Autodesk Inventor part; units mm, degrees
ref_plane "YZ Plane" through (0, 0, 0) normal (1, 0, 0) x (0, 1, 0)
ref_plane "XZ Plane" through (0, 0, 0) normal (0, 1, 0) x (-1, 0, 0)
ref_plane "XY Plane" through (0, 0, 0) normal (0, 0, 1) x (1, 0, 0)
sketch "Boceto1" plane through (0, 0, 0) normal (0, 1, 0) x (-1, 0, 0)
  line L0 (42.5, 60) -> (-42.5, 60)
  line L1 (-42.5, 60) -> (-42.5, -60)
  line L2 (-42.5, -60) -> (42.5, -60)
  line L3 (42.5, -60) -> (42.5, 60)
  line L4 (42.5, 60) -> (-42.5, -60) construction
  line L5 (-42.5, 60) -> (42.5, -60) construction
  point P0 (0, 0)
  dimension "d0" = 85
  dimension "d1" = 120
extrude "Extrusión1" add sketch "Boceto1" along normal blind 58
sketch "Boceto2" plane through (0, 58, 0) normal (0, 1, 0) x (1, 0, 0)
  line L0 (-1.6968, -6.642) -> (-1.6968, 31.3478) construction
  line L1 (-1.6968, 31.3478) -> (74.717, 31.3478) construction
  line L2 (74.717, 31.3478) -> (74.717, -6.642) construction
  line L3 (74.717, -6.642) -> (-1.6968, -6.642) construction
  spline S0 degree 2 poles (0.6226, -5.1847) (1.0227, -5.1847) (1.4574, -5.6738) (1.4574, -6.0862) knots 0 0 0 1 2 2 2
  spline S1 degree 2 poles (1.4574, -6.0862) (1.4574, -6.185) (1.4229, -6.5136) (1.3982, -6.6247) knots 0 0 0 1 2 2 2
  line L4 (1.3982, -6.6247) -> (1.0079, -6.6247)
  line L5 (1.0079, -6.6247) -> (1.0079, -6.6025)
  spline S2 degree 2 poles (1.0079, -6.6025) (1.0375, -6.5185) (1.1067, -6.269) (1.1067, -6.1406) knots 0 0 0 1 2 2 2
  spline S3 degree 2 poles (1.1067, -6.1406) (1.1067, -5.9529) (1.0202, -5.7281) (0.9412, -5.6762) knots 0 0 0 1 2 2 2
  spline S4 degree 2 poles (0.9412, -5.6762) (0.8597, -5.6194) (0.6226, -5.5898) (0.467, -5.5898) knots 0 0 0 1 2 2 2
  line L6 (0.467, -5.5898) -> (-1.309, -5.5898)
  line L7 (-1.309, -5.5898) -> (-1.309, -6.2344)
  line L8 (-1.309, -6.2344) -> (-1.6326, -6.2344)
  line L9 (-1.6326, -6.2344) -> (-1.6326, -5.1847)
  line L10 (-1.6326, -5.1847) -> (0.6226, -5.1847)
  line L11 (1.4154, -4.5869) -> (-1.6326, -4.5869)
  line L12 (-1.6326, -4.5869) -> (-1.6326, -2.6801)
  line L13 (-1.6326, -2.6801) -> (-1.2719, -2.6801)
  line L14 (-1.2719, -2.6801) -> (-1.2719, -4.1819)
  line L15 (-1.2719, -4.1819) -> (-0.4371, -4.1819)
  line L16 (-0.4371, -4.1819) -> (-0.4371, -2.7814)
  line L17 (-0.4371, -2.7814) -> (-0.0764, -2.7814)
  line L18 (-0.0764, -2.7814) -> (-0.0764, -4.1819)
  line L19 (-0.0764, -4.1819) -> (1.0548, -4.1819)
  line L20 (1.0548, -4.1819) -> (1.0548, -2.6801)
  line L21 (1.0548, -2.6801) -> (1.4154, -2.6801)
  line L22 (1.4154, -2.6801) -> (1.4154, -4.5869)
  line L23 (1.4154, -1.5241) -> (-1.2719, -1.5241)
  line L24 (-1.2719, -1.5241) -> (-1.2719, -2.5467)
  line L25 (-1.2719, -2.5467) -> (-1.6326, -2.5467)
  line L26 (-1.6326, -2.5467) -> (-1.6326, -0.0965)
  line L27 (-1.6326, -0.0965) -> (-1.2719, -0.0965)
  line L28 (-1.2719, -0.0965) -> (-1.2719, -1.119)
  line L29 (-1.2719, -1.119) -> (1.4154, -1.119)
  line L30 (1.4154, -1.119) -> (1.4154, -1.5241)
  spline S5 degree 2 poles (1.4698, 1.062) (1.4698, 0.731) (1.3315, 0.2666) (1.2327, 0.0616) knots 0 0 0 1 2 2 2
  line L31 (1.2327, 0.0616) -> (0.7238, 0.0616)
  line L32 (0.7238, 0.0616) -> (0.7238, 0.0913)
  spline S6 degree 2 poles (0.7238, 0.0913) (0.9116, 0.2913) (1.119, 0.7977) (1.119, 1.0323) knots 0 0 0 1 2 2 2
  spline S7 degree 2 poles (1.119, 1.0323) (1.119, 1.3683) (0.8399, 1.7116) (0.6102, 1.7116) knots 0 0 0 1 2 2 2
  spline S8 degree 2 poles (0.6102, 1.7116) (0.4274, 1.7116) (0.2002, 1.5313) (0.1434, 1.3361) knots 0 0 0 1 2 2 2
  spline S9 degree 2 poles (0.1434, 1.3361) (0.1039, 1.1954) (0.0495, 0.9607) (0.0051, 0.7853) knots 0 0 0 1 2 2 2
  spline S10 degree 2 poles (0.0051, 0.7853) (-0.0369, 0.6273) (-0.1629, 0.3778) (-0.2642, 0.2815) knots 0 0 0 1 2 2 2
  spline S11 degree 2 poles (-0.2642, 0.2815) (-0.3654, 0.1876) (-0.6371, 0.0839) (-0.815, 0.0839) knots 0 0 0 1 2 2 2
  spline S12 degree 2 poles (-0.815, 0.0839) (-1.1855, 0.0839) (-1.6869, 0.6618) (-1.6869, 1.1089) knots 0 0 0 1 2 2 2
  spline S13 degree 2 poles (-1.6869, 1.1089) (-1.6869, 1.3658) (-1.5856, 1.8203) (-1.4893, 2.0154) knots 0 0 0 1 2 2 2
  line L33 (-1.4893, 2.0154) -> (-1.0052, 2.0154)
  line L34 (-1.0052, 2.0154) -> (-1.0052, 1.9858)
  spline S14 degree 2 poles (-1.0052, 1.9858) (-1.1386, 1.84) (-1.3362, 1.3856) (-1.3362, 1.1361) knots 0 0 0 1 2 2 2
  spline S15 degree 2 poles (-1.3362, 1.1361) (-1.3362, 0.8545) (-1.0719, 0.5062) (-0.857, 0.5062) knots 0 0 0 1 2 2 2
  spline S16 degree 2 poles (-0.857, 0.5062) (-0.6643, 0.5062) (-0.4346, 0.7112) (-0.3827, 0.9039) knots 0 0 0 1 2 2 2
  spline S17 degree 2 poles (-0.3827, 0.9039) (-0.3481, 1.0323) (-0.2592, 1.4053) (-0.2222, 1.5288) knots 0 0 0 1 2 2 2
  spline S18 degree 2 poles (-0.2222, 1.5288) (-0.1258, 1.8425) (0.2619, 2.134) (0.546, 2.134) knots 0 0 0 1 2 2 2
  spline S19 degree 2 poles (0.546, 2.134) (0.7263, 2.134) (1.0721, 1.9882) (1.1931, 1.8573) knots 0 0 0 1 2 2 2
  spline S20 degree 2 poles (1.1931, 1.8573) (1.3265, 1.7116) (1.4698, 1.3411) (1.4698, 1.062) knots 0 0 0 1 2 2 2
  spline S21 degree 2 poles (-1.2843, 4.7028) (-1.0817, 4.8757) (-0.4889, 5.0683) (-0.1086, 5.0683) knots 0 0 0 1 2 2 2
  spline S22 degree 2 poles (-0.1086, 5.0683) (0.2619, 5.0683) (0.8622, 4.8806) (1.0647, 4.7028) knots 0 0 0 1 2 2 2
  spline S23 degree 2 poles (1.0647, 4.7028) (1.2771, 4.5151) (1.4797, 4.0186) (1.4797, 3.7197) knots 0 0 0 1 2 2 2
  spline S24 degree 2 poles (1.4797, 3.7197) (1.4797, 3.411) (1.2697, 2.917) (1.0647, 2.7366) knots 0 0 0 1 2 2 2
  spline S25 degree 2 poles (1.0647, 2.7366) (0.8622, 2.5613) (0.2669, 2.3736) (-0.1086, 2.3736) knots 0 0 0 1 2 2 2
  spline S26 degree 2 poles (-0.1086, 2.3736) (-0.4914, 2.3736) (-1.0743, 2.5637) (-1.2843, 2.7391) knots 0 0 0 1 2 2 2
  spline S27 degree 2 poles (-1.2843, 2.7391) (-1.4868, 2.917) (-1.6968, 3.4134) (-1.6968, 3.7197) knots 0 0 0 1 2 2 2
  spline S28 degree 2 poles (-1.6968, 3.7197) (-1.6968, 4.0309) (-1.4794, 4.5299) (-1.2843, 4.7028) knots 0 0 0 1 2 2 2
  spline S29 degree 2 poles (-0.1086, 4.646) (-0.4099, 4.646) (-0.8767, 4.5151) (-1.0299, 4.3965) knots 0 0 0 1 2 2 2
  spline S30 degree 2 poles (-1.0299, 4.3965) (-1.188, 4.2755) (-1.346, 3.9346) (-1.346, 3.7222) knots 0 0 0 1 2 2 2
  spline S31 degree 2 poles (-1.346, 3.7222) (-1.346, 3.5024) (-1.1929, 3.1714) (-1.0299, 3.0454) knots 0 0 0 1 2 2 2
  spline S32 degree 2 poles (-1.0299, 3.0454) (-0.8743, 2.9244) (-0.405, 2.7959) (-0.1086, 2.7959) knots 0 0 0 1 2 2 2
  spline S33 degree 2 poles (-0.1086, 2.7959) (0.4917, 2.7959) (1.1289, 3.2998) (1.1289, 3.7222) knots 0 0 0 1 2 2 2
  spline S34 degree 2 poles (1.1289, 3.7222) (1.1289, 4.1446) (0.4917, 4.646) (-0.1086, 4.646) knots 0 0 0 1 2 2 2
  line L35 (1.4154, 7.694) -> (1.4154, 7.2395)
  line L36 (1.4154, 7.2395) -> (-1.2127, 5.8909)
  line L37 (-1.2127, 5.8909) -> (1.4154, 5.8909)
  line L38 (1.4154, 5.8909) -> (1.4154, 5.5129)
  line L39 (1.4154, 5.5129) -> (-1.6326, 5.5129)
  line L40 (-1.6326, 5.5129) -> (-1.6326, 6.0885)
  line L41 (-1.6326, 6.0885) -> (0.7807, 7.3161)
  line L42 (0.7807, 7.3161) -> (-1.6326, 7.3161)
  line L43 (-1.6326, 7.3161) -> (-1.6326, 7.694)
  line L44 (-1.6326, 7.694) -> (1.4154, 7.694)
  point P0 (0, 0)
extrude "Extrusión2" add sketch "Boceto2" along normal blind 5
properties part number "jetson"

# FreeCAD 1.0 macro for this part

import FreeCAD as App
import Part
import Sketcher

V = App.Vector

doc = App.newDocument("Part")
body = doc.addObject("PartDesign::Body", "Body")

# Sketch on XZ plane
sketch1 = body.newObject("Sketcher::SketchObject", "Sketch")
sketch1.AttachmentSupport = (doc.getObject("XZ_Plane"), [""])
sketch1.MapMode = "FlatFace"
sketch1.addGeometry([
    Part.LineSegment(V(-42, -60, 0), V(-42, 60, 0)),
    Part.LineSegment(V(-42, 60, 0), V(42, 60, 0)),
    Part.LineSegment(V(42, 60, 0), V(42, -60, 0)),
    Part.LineSegment(V(42, -60, 0), V(-42, -60, 0)),
], False)
sketch1.addConstraint([
    Sketcher.Constraint("Coincident", 0, 2, 1, 1),
    Sketcher.Constraint("Coincident", 1, 2, 2, 1),
    Sketcher.Constraint("Coincident", 2, 2, 3, 1),
    Sketcher.Constraint("Coincident", 3, 2, 0, 1),
    Sketcher.Constraint("Vertical", 0),
    Sketcher.Constraint("Horizontal", 1),
    Sketcher.Constraint("Vertical", 2),
    Sketcher.Constraint("Horizontal", 3),
    Sketcher.Constraint("Symmetric", 0, 2, 2, 2, -1, 1),
    Sketcher.Constraint("DistanceX", 1, 1, 1, 2, 85.0),
    Sketcher.Constraint("DistanceY", 0, 1, 0, 2, 120.0),
])
pad1 = body.newObject("PartDesign::Pad", "Pad")
pad1.Profile = sketch1
pad1.Length = 58
pad1.Reversed = True

# Sketch on XZ plane
sketch2 = body.newObject("Sketcher::SketchObject", "Sketch001")
sketch2.AttachmentSupport = (doc.getObject("XZ_Plane"), [""])
sketch2.MapMode = "FlatFace"
sketch2.AttachmentOffset = App.Placement(V(0, 0, -58), App.Rotation())
sketch2.addGeometry([
    Part.BSplineCurve([V(0.6226, 5.1847, 0), V(1.0227, 5.1847, 0), V(1.4574, 5.6738, 0), V(1.4574, 6.0862, 0)], [3, 1, 3], [0, 1, 2], False, 2, [1, 1, 1, 1], False),  # 0
    Part.LineSegment(V(0.6226, 5.1847, 0), V(-1.6326, 5.1847, 0)),  # 1
    Part.LineSegment(V(-1.6326, 5.1847, 0), V(-1.6326, 6.2344, 0)),  # 2
    Part.LineSegment(V(-1.6326, 6.2344, 0), V(-1.309, 6.2344, 0)),  # 3
    Part.LineSegment(V(-1.309, 6.2344, 0), V(-1.309, 5.5898, 0)),  # 4
    Part.LineSegment(V(-1.309, 5.5898, 0), V(0.467, 5.5898, 0)),  # 5
    Part.BSplineCurve([V(0.9412, 5.6762, 0), V(0.8597, 5.6194, 0), V(0.6226, 5.5898, 0), V(0.467, 5.5898, 0)], [3, 1, 3], [0, 1, 2], False, 2, [1, 1, 1, 1], False),  # 6
    Part.BSplineCurve([V(1.1067, 6.1406, 0), V(1.1067, 5.9529, 0), V(1.0202, 5.7281, 0), V(0.9412, 5.6762, 0)], [3, 1, 3], [0, 1, 2], False, 2, [1, 1, 1, 1], False),  # 7
    Part.BSplineCurve([V(1.0079, 6.6025, 0), V(1.0375, 6.5185, 0), V(1.1067, 6.269, 0), V(1.1067, 6.1406, 0)], [3, 1, 3], [0, 1, 2], False, 2, [1, 1, 1, 1], False),  # 8
    Part.LineSegment(V(1.0079, 6.6025, 0), V(1.0079, 6.6247, 0)),  # 9
    Part.LineSegment(V(1.0079, 6.6247, 0), V(1.3982, 6.6247, 0)),  # 10
    Part.BSplineCurve([V(1.4574, 6.0862, 0), V(1.4574, 6.185, 0), V(1.4229, 6.5136, 0), V(1.3982, 6.6247, 0)], [3, 1, 3], [0, 1, 2], False, 2, [1, 1, 1, 1], False),  # 11
    Part.LineSegment(V(-1.6326, 4.5869, 0), V(1.4154, 4.5869, 0)),  # 12
    Part.LineSegment(V(1.4154, 4.5869, 0), V(1.4154, 2.6801, 0)),  # 13
    Part.LineSegment(V(1.4154, 2.6801, 0), V(1.0548, 2.6801, 0)),  # 14
    Part.LineSegment(V(1.0548, 2.6801, 0), V(1.0548, 4.1819, 0)),  # 15
    Part.LineSegment(V(1.0548, 4.1819, 0), V(-0.0764, 4.1819, 0)),  # 16
    Part.LineSegment(V(-0.0764, 4.1819, 0), V(-0.0764, 2.7814, 0)),  # 17
    Part.LineSegment(V(-0.0764, 2.7814, 0), V(-0.4371, 2.7814, 0)),  # 18
    Part.LineSegment(V(-0.4371, 2.7814, 0), V(-0.4371, 4.1819, 0)),  # 19
    Part.LineSegment(V(-0.4371, 4.1819, 0), V(-1.2719, 4.1819, 0)),  # 20
    Part.LineSegment(V(-1.2719, 4.1819, 0), V(-1.2719, 2.6801, 0)),  # 21
    Part.LineSegment(V(-1.2719, 2.6801, 0), V(-1.6326, 2.6801, 0)),  # 22
    Part.LineSegment(V(-1.6326, 2.6801, 0), V(-1.6326, 4.5869, 0)),  # 23
    Part.LineSegment(V(-1.2719, 1.5241, 0), V(1.4154, 1.5241, 0)),  # 24
    Part.LineSegment(V(1.4154, 1.5241, 0), V(1.4154, 1.119, 0)),  # 25
    Part.LineSegment(V(1.4154, 1.119, 0), V(-1.2719, 1.119, 0)),  # 26
    Part.LineSegment(V(-1.2719, 1.119, 0), V(-1.2719, 0.0965, 0)),  # 27
    Part.LineSegment(V(-1.2719, 0.0965, 0), V(-1.6326, 0.0965, 0)),  # 28
    Part.LineSegment(V(-1.6326, 0.0965, 0), V(-1.6326, 2.5467, 0)),  # 29
    Part.LineSegment(V(-1.6326, 2.5467, 0), V(-1.2719, 2.5467, 0)),  # 30
    Part.LineSegment(V(-1.2719, 2.5467, 0), V(-1.2719, 1.5241, 0)),  # 31
    Part.BSplineCurve([V(1.4698, -1.062, 0), V(1.4698, -0.731, 0), V(1.3315, -0.2666, 0), V(1.2327, -0.0616, 0)], [3, 1, 3], [0, 1, 2], False, 2, [1, 1, 1, 1], False),  # 32
    Part.BSplineCurve([V(1.1931, -1.8573, 0), V(1.3265, -1.7116, 0), V(1.4698, -1.3411, 0), V(1.4698, -1.062, 0)], [3, 1, 3], [0, 1, 2], False, 2, [1, 1, 1, 1], False),  # 33
    Part.BSplineCurve([V(0.546, -2.134, 0), V(0.7263, -2.134, 0), V(1.0721, -1.9882, 0), V(1.1931, -1.8573, 0)], [3, 1, 3], [0, 1, 2], False, 2, [1, 1, 1, 1], False),  # 34
    Part.BSplineCurve([V(-0.2222, -1.5288, 0), V(-0.1258, -1.8425, 0), V(0.2619, -2.134, 0), V(0.546, -2.134, 0)], [3, 1, 3], [0, 1, 2], False, 2, [1, 1, 1, 1], False),  # 35
    Part.BSplineCurve([V(-0.3827, -0.9039, 0), V(-0.3481, -1.0323, 0), V(-0.2592, -1.4053, 0), V(-0.2222, -1.5288, 0)], [3, 1, 3], [0, 1, 2], False, 2, [1, 1, 1, 1], False),  # 36
    Part.BSplineCurve([V(-0.857, -0.5062, 0), V(-0.6643, -0.5062, 0), V(-0.4346, -0.7112, 0), V(-0.3827, -0.9039, 0)], [3, 1, 3], [0, 1, 2], False, 2, [1, 1, 1, 1], False),  # 37
    Part.BSplineCurve([V(-1.3362, -1.1361, 0), V(-1.3362, -0.8545, 0), V(-1.0719, -0.5062, 0), V(-0.857, -0.5062, 0)], [3, 1, 3], [0, 1, 2], False, 2, [1, 1, 1, 1], False),  # 38
    Part.BSplineCurve([V(-1.0052, -1.9858, 0), V(-1.1386, -1.84, 0), V(-1.3362, -1.3856, 0), V(-1.3362, -1.1361, 0)], [3, 1, 3], [0, 1, 2], False, 2, [1, 1, 1, 1], False),  # 39
    Part.LineSegment(V(-1.0052, -1.9858, 0), V(-1.0052, -2.0154, 0)),  # 40
    Part.LineSegment(V(-1.0052, -2.0154, 0), V(-1.4893, -2.0154, 0)),  # 41
    Part.BSplineCurve([V(-1.6869, -1.1089, 0), V(-1.6869, -1.3658, 0), V(-1.5856, -1.8203, 0), V(-1.4893, -2.0154, 0)], [3, 1, 3], [0, 1, 2], False, 2, [1, 1, 1, 1], False),  # 42
    Part.BSplineCurve([V(-0.815, -0.0839, 0), V(-1.1855, -0.0839, 0), V(-1.6869, -0.6618, 0), V(-1.6869, -1.1089, 0)], [3, 1, 3], [0, 1, 2], False, 2, [1, 1, 1, 1], False),  # 43
    Part.BSplineCurve([V(-0.2642, -0.2815, 0), V(-0.3654, -0.1876, 0), V(-0.6371, -0.0839, 0), V(-0.815, -0.0839, 0)], [3, 1, 3], [0, 1, 2], False, 2, [1, 1, 1, 1], False),  # 44
    Part.BSplineCurve([V(0.0051, -0.7853, 0), V(-0.0369, -0.6273, 0), V(-0.1629, -0.3778, 0), V(-0.2642, -0.2815, 0)], [3, 1, 3], [0, 1, 2], False, 2, [1, 1, 1, 1], False),  # 45
    Part.BSplineCurve([V(0.1434, -1.3361, 0), V(0.1039, -1.1954, 0), V(0.0495, -0.9607, 0), V(0.0051, -0.7853, 0)], [3, 1, 3], [0, 1, 2], False, 2, [1, 1, 1, 1], False),  # 46
    Part.BSplineCurve([V(0.6102, -1.7116, 0), V(0.4274, -1.7116, 0), V(0.2002, -1.5313, 0), V(0.1434, -1.3361, 0)], [3, 1, 3], [0, 1, 2], False, 2, [1, 1, 1, 1], False),  # 47
    Part.BSplineCurve([V(1.119, -1.0323, 0), V(1.119, -1.3683, 0), V(0.8399, -1.7116, 0), V(0.6102, -1.7116, 0)], [3, 1, 3], [0, 1, 2], False, 2, [1, 1, 1, 1], False),  # 48
    Part.BSplineCurve([V(0.7238, -0.0913, 0), V(0.9116, -0.2913, 0), V(1.119, -0.7977, 0), V(1.119, -1.0323, 0)], [3, 1, 3], [0, 1, 2], False, 2, [1, 1, 1, 1], False),  # 49
    Part.LineSegment(V(0.7238, -0.0913, 0), V(0.7238, -0.0616, 0)),  # 50
    Part.LineSegment(V(0.7238, -0.0616, 0), V(1.2327, -0.0616, 0)),  # 51
    Part.BSplineCurve([V(-1.2843, -4.7028, 0), V(-1.0817, -4.8757, 0), V(-0.4889, -5.0683, 0), V(-0.1086, -5.0683, 0)], [3, 1, 3], [0, 1, 2], False, 2, [1, 1, 1, 1], False),  # 52
    Part.BSplineCurve([V(-1.6968, -3.7197, 0), V(-1.6968, -4.0309, 0), V(-1.4794, -4.5299, 0), V(-1.2843, -4.7028, 0)], [3, 1, 3], [0, 1, 2], False, 2, [1, 1, 1, 1], False),  # 53
    Part.BSplineCurve([V(-1.2843, -2.7391, 0), V(-1.4868, -2.917, 0), V(-1.6968, -3.4134, 0), V(-1.6968, -3.7197, 0)], [3, 1, 3], [0, 1, 2], False, 2, [1, 1, 1, 1], False),  # 54
    Part.BSplineCurve([V(-0.1086, -2.3736, 0), V(-0.4914, -2.3736, 0), V(-1.0743, -2.5637, 0), V(-1.2843, -2.7391, 0)], [3, 1, 3], [0, 1, 2], False, 2, [1, 1, 1, 1], False),  # 55
    Part.BSplineCurve([V(1.0647, -2.7366, 0), V(0.8622, -2.5613, 0), V(0.2669, -2.3736, 0), V(-0.1086, -2.3736, 0)], [3, 1, 3], [0, 1, 2], False, 2, [1, 1, 1, 1], False),  # 56
    Part.BSplineCurve([V(1.4797, -3.7197, 0), V(1.4797, -3.411, 0), V(1.2697, -2.917, 0), V(1.0647, -2.7366, 0)], [3, 1, 3], [0, 1, 2], False, 2, [1, 1, 1, 1], False),  # 57
    Part.BSplineCurve([V(1.0647, -4.7028, 0), V(1.2771, -4.5151, 0), V(1.4797, -4.0186, 0), V(1.4797, -3.7197, 0)], [3, 1, 3], [0, 1, 2], False, 2, [1, 1, 1, 1], False),  # 58
    Part.BSplineCurve([V(-0.1086, -5.0683, 0), V(0.2619, -5.0683, 0), V(0.8622, -4.8806, 0), V(1.0647, -4.7028, 0)], [3, 1, 3], [0, 1, 2], False, 2, [1, 1, 1, 1], False),  # 59
    Part.BSplineCurve([V(-0.1086, -4.646, 0), V(-0.4099, -4.646, 0), V(-0.8767, -4.5151, 0), V(-1.0299, -4.3965, 0)], [3, 1, 3], [0, 1, 2], False, 2, [1, 1, 1, 1], False),  # 60
    Part.BSplineCurve([V(1.1289, -3.7222, 0), V(1.1289, -4.1446, 0), V(0.4917, -4.646, 0), V(-0.1086, -4.646, 0)], [3, 1, 3], [0, 1, 2], False, 2, [1, 1, 1, 1], False),  # 61
    Part.BSplineCurve([V(-0.1086, -2.7959, 0), V(0.4917, -2.7959, 0), V(1.1289, -3.2998, 0), V(1.1289, -3.7222, 0)], [3, 1, 3], [0, 1, 2], False, 2, [1, 1, 1, 1], False),  # 62
    Part.BSplineCurve([V(-1.0299, -3.0454, 0), V(-0.8743, -2.9244, 0), V(-0.405, -2.7959, 0), V(-0.1086, -2.7959, 0)], [3, 1, 3], [0, 1, 2], False, 2, [1, 1, 1, 1], False),  # 63
    Part.BSplineCurve([V(-1.346, -3.7222, 0), V(-1.346, -3.5024, 0), V(-1.1929, -3.1714, 0), V(-1.0299, -3.0454, 0)], [3, 1, 3], [0, 1, 2], False, 2, [1, 1, 1, 1], False),  # 64
    Part.BSplineCurve([V(-1.0299, -4.3965, 0), V(-1.188, -4.2755, 0), V(-1.346, -3.9346, 0), V(-1.346, -3.7222, 0)], [3, 1, 3], [0, 1, 2], False, 2, [1, 1, 1, 1], False),  # 65
    Part.LineSegment(V(1.4154, -7.2395, 0), V(1.4154, -7.694, 0)),  # 66
    Part.LineSegment(V(1.4154, -7.694, 0), V(-1.6326, -7.694, 0)),  # 67
    Part.LineSegment(V(-1.6326, -7.694, 0), V(-1.6326, -7.3161, 0)),  # 68
    Part.LineSegment(V(-1.6326, -7.3161, 0), V(0.7807, -7.3161, 0)),  # 69
    Part.LineSegment(V(0.7807, -7.3161, 0), V(-1.6326, -6.0885, 0)),  # 70
    Part.LineSegment(V(-1.6326, -6.0885, 0), V(-1.6326, -5.5129, 0)),  # 71
    Part.LineSegment(V(-1.6326, -5.5129, 0), V(1.4154, -5.5129, 0)),  # 72
    Part.LineSegment(V(1.4154, -5.5129, 0), V(1.4154, -5.8909, 0)),  # 73
    Part.LineSegment(V(1.4154, -5.8909, 0), V(-1.2127, -5.8909, 0)),  # 74
    Part.LineSegment(V(-1.2127, -5.8909, 0), V(1.4154, -7.2395, 0)),  # 75
], False)
sketch2.addConstraint([
    Sketcher.Constraint("Block", 0),
    Sketcher.Constraint("Block", 6),
    Sketcher.Constraint("Block", 7),
    Sketcher.Constraint("Block", 8),
    Sketcher.Constraint("Block", 11),
    Sketcher.Constraint("Block", 32),
    Sketcher.Constraint("Block", 33),
    Sketcher.Constraint("Block", 34),
    Sketcher.Constraint("Block", 35),
    Sketcher.Constraint("Block", 36),
    Sketcher.Constraint("Block", 37),
    Sketcher.Constraint("Block", 38),
    Sketcher.Constraint("Block", 39),
    Sketcher.Constraint("Block", 42),
    Sketcher.Constraint("Block", 43),
    Sketcher.Constraint("Block", 44),
    Sketcher.Constraint("Block", 45),
    Sketcher.Constraint("Block", 46),
    Sketcher.Constraint("Block", 47),
    Sketcher.Constraint("Block", 48),
    Sketcher.Constraint("Block", 49),
    Sketcher.Constraint("Block", 52),
    Sketcher.Constraint("Block", 53),
    Sketcher.Constraint("Block", 54),
    Sketcher.Constraint("Block", 55),
    Sketcher.Constraint("Block", 56),
    Sketcher.Constraint("Block", 57),
    Sketcher.Constraint("Block", 58),
    Sketcher.Constraint("Block", 59),
    Sketcher.Constraint("Block", 60),
    Sketcher.Constraint("Block", 61),
    Sketcher.Constraint("Block", 62),
    Sketcher.Constraint("Block", 63),
    Sketcher.Constraint("Block", 64),
    Sketcher.Constraint("Block", 65),
    Sketcher.Constraint("Coincident", 0, 1, 1, 1),
    Sketcher.Constraint("Coincident", 1, 2, 2, 1),
    Sketcher.Constraint("Coincident", 2, 2, 3, 1),
    Sketcher.Constraint("Coincident", 3, 2, 4, 1),
    Sketcher.Constraint("Coincident", 4, 2, 5, 1),
    Sketcher.Constraint("Coincident", 5, 2, 6, 2),
    Sketcher.Constraint("Coincident", 8, 1, 9, 1),
    Sketcher.Constraint("Coincident", 9, 2, 10, 1),
    Sketcher.Constraint("Coincident", 10, 2, 11, 2),
    Sketcher.Constraint("Coincident", 12, 2, 13, 1),
    Sketcher.Constraint("Coincident", 13, 2, 14, 1),
    Sketcher.Constraint("Coincident", 14, 2, 15, 1),
    Sketcher.Constraint("Coincident", 15, 2, 16, 1),
    Sketcher.Constraint("Coincident", 16, 2, 17, 1),
    Sketcher.Constraint("Coincident", 17, 2, 18, 1),
    Sketcher.Constraint("Coincident", 18, 2, 19, 1),
    Sketcher.Constraint("Coincident", 19, 2, 20, 1),
    Sketcher.Constraint("Coincident", 20, 2, 21, 1),
    Sketcher.Constraint("Coincident", 21, 2, 22, 1),
    Sketcher.Constraint("Coincident", 22, 2, 23, 1),
    Sketcher.Constraint("Coincident", 23, 2, 12, 1),
    Sketcher.Constraint("Coincident", 24, 2, 25, 1),
    Sketcher.Constraint("Coincident", 25, 2, 26, 1),
    Sketcher.Constraint("Coincident", 26, 2, 27, 1),
    Sketcher.Constraint("Coincident", 27, 2, 28, 1),
    Sketcher.Constraint("Coincident", 28, 2, 29, 1),
    Sketcher.Constraint("Coincident", 29, 2, 30, 1),
    Sketcher.Constraint("Coincident", 30, 2, 31, 1),
    Sketcher.Constraint("Coincident", 31, 2, 24, 1),
    Sketcher.Constraint("Coincident", 39, 1, 40, 1),
    Sketcher.Constraint("Coincident", 40, 2, 41, 1),
    Sketcher.Constraint("Coincident", 41, 2, 42, 2),
    Sketcher.Constraint("Coincident", 49, 1, 50, 1),
    Sketcher.Constraint("Coincident", 50, 2, 51, 1),
    Sketcher.Constraint("Coincident", 51, 2, 32, 2),
    Sketcher.Constraint("Coincident", 66, 2, 67, 1),
    Sketcher.Constraint("Coincident", 67, 2, 68, 1),
    Sketcher.Constraint("Coincident", 68, 2, 69, 1),
    Sketcher.Constraint("Coincident", 69, 2, 70, 1),
    Sketcher.Constraint("Coincident", 70, 2, 71, 1),
    Sketcher.Constraint("Coincident", 71, 2, 72, 1),
    Sketcher.Constraint("Coincident", 72, 2, 73, 1),
    Sketcher.Constraint("Coincident", 73, 2, 74, 1),
    Sketcher.Constraint("Coincident", 74, 2, 75, 1),
    Sketcher.Constraint("Coincident", 75, 2, 66, 1),
    Sketcher.Constraint("Horizontal", 1),
    Sketcher.Constraint("Vertical", 2),
    Sketcher.Constraint("Horizontal", 3),
    Sketcher.Constraint("Vertical", 4),
    Sketcher.Constraint("Horizontal", 5),
    Sketcher.Constraint("Vertical", 9),
    Sketcher.Constraint("Horizontal", 10),
    Sketcher.Constraint("Horizontal", 12),
    Sketcher.Constraint("Vertical", 13),
    Sketcher.Constraint("Horizontal", 14),
    Sketcher.Constraint("Vertical", 15),
    Sketcher.Constraint("Horizontal", 16),
    Sketcher.Constraint("Vertical", 17),
    Sketcher.Constraint("Horizontal", 18),
    Sketcher.Constraint("Vertical", 19),
    Sketcher.Constraint("Horizontal", 20),
    Sketcher.Constraint("Vertical", 21),
    Sketcher.Constraint("Horizontal", 22),
    Sketcher.Constraint("Vertical", 23),
    Sketcher.Constraint("Horizontal", 24),
    Sketcher.Constraint("Vertical", 25),
    Sketcher.Constraint("Horizontal", 26),
    Sketcher.Constraint("Vertical", 27),
    Sketcher.Constraint("Horizontal", 28),
    Sketcher.Constraint("Vertical", 29),
    Sketcher.Constraint("Horizontal", 30),
    Sketcher.Constraint("Vertical", 31),
    Sketcher.Constraint("Vertical", 40),
    Sketcher.Constraint("Horizontal", 41),
    Sketcher.Constraint("Vertical", 50),
    Sketcher.Constraint("Horizontal", 51),
    Sketcher.Constraint("Vertical", 66),
    Sketcher.Constraint("Horizontal", 67),
    Sketcher.Constraint("Vertical", 68),
    Sketcher.Constraint("Horizontal", 69),
    Sketcher.Constraint("Vertical", 71),
    Sketcher.Constraint("Horizontal", 72),
    Sketcher.Constraint("Vertical", 73),
    Sketcher.Constraint("Horizontal", 74),
    Sketcher.Constraint("Horizontal", 16, 2, 19, 2),
    Sketcher.Constraint("Horizontal", 14, 2, 21, 2),
    Sketcher.Constraint("Vertical", 2, 2, 22, 2),
    Sketcher.Constraint("Vertical", 13, 2, 24, 2),
    Sketcher.Constraint("Vertical", 21, 2, 26, 2),
    Sketcher.Constraint("Vertical", 23, 2, 28, 2),
    Sketcher.Constraint("Vertical", 27, 2, 30, 2),
    Sketcher.Constraint("Vertical", 25, 2, 66, 2),
    Sketcher.Constraint("Vertical", 29, 2, 67, 2),
    Sketcher.Constraint("Vertical", 68, 2, 70, 2),
    Sketcher.Constraint("Vertical", 66, 2, 72, 2),
    Sketcher.Constraint("Equal", 14, 18),
    Sketcher.Constraint("Equal", 18, 22),
    Sketcher.Constraint("Equal", 27, 31),
    Sketcher.Constraint("Equal", 68, 73),
    Sketcher.Constraint("DistanceX", 5, 1, 5, 2, 1.776),
    Sketcher.Constraint("DistanceX", 12, 1, 12, 2, 3.048),
    Sketcher.Constraint("DistanceX", 74, 2, 74, 1, 2.628),
    Sketcher.Constraint("DistanceY", 25, 2, 25, 1, 0.405),
    Sketcher.Constraint("DistanceY", 68, 1, 68, 2, 0.378),
    Sketcher.Constraint("DistanceY", -1, 1, 13, 2, 2.68),
    Sketcher.Constraint("DistanceX", 41, 2, 69, 2, 2.27),
    Sketcher.Constraint("Distance", 75, 2.954),
    Sketcher.Constraint("DistanceX", 1, 2, 1, 1, 2.2552),
    Sketcher.Constraint("DistanceX", 14, 2, 14, 1, 0.3606),
    Sketcher.Constraint("DistanceX", 16, 2, 16, 1, 1.1312),
    Sketcher.Constraint("DistanceY", 2, 1, 2, 2, 1.0497),
    Sketcher.Constraint("DistanceY", 13, 2, 13, 1, 1.9068),
    Sketcher.Constraint("DistanceY", 15, 1, 15, 2, 1.5018),
    Sketcher.Constraint("DistanceY", 17, 2, 17, 1, 1.4005),
    Sketcher.Constraint("DistanceY", 27, 2, 27, 1, 1.0225),
    Sketcher.Constraint("DistanceY", 66, 2, 66, 1, 0.4545),
    Sketcher.Constraint("DistanceY", 71, 1, 71, 2, 0.5756),
    Sketcher.Constraint("DistanceY", -1, 1, 24, 2, 1.524),
    Sketcher.Constraint("DistanceY", 66, 2, -1, 1, 7.694),
])
pad2 = body.newObject("PartDesign::Pad", "Pad001")
pad2.Profile = sketch2
pad2.Length = 5
pad2.Reversed = True

doc.recompute()
